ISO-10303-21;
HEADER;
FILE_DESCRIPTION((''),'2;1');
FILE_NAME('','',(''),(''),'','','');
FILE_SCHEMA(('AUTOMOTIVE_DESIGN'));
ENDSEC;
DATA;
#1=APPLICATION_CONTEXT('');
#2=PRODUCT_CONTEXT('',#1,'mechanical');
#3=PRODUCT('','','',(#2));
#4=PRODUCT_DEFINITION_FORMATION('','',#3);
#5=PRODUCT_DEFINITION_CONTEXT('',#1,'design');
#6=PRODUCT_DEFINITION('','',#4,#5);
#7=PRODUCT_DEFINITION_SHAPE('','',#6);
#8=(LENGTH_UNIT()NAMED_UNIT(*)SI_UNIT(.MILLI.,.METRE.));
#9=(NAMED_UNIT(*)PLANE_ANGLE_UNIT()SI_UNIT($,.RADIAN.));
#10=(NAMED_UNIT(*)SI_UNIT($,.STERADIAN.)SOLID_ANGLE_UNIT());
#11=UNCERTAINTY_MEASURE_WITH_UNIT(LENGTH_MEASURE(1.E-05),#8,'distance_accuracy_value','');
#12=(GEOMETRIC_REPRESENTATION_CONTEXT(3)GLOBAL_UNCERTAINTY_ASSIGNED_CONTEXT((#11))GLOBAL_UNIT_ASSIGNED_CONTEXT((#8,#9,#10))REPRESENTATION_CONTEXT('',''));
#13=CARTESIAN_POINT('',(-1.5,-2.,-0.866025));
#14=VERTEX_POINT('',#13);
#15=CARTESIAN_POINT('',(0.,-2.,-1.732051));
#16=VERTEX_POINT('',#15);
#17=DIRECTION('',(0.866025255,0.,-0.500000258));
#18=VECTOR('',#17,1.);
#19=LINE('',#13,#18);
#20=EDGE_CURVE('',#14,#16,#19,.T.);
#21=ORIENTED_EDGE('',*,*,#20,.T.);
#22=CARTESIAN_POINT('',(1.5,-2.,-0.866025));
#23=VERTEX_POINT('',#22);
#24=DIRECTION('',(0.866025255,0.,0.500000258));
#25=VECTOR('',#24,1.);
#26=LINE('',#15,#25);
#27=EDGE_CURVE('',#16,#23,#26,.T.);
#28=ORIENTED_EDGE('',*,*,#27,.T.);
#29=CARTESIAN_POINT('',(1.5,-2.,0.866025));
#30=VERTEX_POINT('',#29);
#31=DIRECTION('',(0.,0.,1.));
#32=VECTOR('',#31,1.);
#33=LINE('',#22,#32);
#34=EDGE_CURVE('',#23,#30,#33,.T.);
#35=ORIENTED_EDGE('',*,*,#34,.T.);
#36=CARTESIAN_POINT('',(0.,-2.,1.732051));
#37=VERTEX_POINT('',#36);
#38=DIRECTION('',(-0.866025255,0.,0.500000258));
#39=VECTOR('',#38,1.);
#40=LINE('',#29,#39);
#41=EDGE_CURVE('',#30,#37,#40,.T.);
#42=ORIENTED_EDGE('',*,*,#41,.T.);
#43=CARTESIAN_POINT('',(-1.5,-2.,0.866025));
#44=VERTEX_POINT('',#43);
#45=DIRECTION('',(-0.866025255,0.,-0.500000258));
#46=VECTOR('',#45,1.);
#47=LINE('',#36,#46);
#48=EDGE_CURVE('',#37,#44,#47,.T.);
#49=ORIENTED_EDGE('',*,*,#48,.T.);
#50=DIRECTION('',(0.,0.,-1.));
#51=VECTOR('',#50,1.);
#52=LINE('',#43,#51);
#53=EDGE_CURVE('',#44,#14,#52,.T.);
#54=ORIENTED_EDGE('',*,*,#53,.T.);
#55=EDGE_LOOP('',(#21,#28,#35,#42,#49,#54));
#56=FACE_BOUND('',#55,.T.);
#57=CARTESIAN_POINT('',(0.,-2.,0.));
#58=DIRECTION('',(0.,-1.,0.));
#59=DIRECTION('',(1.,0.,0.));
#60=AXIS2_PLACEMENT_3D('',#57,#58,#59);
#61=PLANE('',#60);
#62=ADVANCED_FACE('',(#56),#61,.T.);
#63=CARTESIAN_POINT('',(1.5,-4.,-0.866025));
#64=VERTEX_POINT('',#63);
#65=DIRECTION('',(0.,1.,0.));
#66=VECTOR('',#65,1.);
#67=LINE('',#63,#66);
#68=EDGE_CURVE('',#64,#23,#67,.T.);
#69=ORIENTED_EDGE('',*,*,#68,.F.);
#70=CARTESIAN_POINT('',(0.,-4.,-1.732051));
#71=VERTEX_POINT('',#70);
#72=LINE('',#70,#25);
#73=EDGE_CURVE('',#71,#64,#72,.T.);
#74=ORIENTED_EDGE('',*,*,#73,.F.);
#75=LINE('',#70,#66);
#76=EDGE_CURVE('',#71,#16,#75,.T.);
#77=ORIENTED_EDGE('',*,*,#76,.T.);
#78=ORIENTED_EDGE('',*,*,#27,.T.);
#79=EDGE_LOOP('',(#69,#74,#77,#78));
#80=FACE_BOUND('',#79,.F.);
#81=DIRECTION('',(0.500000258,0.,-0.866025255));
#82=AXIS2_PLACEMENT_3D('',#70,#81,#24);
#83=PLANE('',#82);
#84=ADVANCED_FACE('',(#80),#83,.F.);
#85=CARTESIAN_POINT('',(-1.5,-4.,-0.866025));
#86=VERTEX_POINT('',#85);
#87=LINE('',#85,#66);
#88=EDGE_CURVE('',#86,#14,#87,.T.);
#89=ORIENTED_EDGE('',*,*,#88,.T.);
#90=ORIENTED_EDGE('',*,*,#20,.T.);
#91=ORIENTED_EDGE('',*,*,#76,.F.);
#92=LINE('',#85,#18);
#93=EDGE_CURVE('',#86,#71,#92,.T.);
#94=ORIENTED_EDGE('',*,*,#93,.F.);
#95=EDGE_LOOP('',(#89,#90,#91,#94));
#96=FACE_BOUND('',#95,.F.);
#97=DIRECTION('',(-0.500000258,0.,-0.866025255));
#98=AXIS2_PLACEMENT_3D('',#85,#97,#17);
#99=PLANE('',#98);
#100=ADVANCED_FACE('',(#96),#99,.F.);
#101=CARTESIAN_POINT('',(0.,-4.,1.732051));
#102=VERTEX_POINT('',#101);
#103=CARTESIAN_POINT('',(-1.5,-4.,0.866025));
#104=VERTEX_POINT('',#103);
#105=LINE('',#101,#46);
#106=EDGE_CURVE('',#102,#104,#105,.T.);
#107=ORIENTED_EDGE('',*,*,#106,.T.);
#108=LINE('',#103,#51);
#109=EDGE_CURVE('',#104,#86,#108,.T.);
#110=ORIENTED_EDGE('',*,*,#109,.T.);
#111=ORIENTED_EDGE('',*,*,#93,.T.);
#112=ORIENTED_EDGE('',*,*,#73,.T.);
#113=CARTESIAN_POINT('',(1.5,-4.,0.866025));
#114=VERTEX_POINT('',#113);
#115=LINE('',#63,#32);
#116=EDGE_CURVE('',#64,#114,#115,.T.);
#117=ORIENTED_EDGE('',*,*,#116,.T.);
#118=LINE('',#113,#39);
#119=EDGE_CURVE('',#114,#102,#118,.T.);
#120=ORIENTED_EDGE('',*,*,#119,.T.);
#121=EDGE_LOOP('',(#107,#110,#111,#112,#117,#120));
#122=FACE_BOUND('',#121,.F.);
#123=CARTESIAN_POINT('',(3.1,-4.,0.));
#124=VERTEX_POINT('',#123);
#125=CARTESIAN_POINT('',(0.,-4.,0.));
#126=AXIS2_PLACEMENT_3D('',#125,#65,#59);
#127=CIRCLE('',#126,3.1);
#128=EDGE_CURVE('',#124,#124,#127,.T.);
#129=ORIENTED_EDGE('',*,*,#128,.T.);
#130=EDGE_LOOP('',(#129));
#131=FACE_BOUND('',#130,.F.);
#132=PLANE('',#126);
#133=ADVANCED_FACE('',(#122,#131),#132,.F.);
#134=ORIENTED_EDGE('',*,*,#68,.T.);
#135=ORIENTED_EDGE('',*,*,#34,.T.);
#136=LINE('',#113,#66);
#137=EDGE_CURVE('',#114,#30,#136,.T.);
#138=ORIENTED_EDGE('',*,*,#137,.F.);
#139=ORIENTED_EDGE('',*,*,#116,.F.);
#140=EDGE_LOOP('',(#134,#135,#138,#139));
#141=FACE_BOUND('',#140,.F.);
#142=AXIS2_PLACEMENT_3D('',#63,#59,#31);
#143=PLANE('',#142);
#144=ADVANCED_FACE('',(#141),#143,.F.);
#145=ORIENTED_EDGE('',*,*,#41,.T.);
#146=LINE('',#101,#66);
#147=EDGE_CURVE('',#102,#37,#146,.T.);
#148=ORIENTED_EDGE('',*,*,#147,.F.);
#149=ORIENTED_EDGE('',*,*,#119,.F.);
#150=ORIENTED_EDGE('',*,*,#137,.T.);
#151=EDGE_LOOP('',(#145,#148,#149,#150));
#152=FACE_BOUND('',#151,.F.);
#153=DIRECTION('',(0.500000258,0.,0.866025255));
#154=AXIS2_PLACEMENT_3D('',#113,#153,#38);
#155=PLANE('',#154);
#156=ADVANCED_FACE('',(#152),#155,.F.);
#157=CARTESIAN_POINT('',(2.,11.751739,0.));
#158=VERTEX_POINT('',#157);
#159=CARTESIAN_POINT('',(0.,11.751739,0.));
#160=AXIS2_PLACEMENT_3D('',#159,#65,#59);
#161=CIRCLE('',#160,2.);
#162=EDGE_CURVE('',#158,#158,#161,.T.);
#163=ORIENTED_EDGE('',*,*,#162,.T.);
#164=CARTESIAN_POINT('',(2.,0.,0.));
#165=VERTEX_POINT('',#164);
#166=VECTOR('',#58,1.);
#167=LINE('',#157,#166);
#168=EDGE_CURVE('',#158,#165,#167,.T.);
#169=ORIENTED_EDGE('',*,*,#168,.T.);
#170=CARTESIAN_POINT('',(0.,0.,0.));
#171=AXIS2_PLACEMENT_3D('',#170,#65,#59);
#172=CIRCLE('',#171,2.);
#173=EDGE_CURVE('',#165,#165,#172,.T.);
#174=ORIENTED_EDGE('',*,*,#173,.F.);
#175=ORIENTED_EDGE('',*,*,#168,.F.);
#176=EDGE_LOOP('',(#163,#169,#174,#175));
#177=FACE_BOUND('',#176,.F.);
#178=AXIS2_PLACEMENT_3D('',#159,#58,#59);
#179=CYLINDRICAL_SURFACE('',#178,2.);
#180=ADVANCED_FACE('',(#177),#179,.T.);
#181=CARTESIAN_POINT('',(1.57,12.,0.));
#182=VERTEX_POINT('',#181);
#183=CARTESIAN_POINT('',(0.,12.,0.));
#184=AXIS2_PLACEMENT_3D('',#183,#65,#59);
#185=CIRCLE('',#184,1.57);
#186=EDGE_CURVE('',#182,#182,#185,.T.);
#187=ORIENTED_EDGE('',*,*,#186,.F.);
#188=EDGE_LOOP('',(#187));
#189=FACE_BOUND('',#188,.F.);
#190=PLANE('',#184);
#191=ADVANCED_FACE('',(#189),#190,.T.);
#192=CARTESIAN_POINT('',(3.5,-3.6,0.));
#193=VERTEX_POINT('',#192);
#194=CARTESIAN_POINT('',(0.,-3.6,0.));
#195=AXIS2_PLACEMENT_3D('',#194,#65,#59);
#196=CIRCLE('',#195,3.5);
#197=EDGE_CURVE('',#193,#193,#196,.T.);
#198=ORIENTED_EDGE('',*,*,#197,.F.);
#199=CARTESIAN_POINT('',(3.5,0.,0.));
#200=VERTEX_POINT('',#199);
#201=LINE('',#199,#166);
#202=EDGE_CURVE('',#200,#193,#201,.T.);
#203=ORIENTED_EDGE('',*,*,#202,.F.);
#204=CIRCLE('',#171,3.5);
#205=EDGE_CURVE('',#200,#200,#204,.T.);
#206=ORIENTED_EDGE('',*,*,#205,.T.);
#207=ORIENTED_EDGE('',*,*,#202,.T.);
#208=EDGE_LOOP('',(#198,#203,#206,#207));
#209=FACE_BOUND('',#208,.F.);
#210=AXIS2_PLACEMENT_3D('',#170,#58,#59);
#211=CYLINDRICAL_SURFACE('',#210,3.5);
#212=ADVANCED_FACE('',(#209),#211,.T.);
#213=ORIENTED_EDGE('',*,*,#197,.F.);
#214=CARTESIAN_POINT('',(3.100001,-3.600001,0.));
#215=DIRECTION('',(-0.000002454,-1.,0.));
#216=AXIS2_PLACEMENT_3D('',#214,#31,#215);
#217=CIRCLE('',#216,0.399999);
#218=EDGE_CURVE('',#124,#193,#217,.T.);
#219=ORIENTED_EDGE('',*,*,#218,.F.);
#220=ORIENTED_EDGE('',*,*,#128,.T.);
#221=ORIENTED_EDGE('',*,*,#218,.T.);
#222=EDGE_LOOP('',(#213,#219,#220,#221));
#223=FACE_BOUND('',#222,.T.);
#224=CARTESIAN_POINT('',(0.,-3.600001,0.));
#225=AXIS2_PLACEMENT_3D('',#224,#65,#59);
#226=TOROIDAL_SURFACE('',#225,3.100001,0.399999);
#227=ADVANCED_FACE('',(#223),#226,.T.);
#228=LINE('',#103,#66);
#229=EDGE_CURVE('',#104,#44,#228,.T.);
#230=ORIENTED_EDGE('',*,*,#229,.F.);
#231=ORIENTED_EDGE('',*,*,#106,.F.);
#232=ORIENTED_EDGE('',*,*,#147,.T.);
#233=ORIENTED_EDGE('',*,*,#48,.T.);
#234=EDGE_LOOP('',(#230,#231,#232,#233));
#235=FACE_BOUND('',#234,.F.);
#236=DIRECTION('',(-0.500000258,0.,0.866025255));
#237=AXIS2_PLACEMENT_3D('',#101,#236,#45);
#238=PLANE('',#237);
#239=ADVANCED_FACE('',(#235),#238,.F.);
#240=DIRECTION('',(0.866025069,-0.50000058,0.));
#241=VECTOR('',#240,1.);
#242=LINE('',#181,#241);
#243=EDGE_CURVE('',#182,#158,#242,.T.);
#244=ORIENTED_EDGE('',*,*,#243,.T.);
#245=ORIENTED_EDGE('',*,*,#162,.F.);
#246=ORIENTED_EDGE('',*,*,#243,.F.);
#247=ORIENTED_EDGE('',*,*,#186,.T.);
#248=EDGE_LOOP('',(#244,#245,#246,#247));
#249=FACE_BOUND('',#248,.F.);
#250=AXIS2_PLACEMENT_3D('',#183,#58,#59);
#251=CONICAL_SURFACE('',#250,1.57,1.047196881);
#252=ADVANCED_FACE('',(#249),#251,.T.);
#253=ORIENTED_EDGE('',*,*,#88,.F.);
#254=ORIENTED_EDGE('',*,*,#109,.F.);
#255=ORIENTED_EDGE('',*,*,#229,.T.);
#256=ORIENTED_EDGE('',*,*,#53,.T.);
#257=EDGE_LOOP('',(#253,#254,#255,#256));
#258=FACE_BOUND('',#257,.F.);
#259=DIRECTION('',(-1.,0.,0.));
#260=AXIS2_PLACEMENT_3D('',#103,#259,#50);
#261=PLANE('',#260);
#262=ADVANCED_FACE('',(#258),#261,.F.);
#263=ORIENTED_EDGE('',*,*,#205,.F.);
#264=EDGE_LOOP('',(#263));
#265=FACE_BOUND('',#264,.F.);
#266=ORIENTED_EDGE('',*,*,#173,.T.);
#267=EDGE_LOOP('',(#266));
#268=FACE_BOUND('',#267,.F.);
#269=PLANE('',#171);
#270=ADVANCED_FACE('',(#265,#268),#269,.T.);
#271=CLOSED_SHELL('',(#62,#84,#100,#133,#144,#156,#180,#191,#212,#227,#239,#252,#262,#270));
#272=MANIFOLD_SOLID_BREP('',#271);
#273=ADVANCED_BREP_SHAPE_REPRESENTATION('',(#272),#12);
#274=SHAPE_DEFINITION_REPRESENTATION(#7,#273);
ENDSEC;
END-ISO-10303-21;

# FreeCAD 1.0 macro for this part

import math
import FreeCAD as App
import Part
import Sketcher

V = App.Vector
Q = App.Units.Quantity


def add_polygon(sketch, points):
    """Adds a closed chain of lines whose ends are joined by coincident constraints."""
    first, n = sketch.GeometryCount, len(points)
    for a, b in zip(points, points[1:] + points[:1]):
        sketch.addGeometry(Part.LineSegment(App.Vector(*a, 0), App.Vector(*b, 0)), False)
    for i in range(n):
        sketch.addConstraint(Sketcher.Constraint("Coincident", first + i, 2, first + (i + 1) % n, 1))

doc = App.newDocument("Part")
body = doc.addObject("PartDesign::Body", "Body")

# Sketch on XY plane
sketch1 = body.newObject("Sketcher::SketchObject", "Sketch")
sketch1.AttachmentSupport = (doc.getObject("XY_Plane"), [""])
sketch1.MapMode = "FlatFace"
sketch1.addGeometry([
    Part.LineSegment(V(3.5, 0, 0), V(2, 0, 0)),  # 0
    Part.LineSegment(V(2, 0, 0), V(2, 11.751739, 0)),  # 1
    Part.LineSegment(V(2, 11.751739, 0), V(1.57, 12, 0)),  # 2
    Part.LineSegment(V(1.57, 12, 0), V(0, 12, 0)),  # 3
    Part.LineSegment(V(0, 12, 0), V(0, -4, 0)),  # 4
    Part.LineSegment(V(0, -4, 0), V(3.1, -4, 0)),  # 5
    Part.ArcOfCircle(Part.Circle(V(3.100001, -3.600001, 0), V(0, 0, 1), 0.399999), math.radians(-90.000141), math.radians(0.000141)),  # 6
    Part.LineSegment(V(3.5, -3.6, 0), V(3.5, 0, 0)),  # 7
], False)
sketch1.addConstraint([
    Sketcher.Constraint("Coincident", 0, 2, 1, 1),
    Sketcher.Constraint("Coincident", 1, 2, 2, 1),
    Sketcher.Constraint("Coincident", 2, 2, 3, 1),
    Sketcher.Constraint("Coincident", 3, 2, 4, 1),
    Sketcher.Constraint("Coincident", 4, 2, 5, 1),
    Sketcher.Constraint("Coincident", 5, 2, 6, 1),
    Sketcher.Constraint("Coincident", 6, 2, 7, 1),
    Sketcher.Constraint("Coincident", 7, 2, 0, 1),
    Sketcher.Constraint("Horizontal", 0),
    Sketcher.Constraint("Vertical", 1),
    Sketcher.Constraint("Horizontal", 3),
    Sketcher.Constraint("Vertical", 4),
    Sketcher.Constraint("Horizontal", 5),
    Sketcher.Constraint("Vertical", 7),
    Sketcher.Constraint("PointOnObject", 0, 2, -1),
    Sketcher.Constraint("PointOnObject", 3, 2, -2),
    Sketcher.Constraint("Vertical", 6, 3, 5, 2),
    Sketcher.Constraint("Radius", 6, Q("0.399999 mm")),
    Sketcher.Constraint("DistanceY", 4, 2, 4, 1, Q("16 mm")),
    Sketcher.Constraint("DistanceX", 0, 2, 0, 1, Q("1.5 mm")),
    Sketcher.Constraint("DistanceX", 5, 1, 5, 2, Q("3.1 mm")),
    Sketcher.Constraint("DistanceY", 7, 1, 7, 2, Q("3.6 mm")),
    Sketcher.Constraint("DistanceY", -1, 1, 2, 2, Q("12 mm")),
    Sketcher.Constraint("DistanceX", 3, 2, 3, 1, Q("1.57 mm")),
    Sketcher.Constraint("DistanceY", 1, 1, 1, 2, Q("11.751739 mm")),
])
revolution = body.newObject("PartDesign::Revolution", "Revolution")
revolution.Profile = sketch1
revolution.ReferenceAxis = (sketch1, ["V_Axis"])
revolution.Angle = 360

# Sketch on XZ plane
sketch2 = body.newObject("Sketcher::SketchObject", "Sketch001")
sketch2.AttachmentSupport = (doc.getObject("XZ_Plane"), [""])
sketch2.MapMode = "FlatFace"
sketch2.AttachmentOffset = App.Placement(V(0, 0, 4), App.Rotation())
add_polygon(sketch2, [(-1.5, 0.866025), (-1.5, -0.866025), (0, -1.732051), (1.5, -0.866025), (1.5, 0.866025), (0, 1.732051)])  # lines 0-5
sketch2.addConstraint([
    Sketcher.Constraint("Vertical", 0),
    Sketcher.Constraint("Vertical", 3),
    Sketcher.Constraint("Symmetric", 0, 2, 3, 2, -1, 1),
    Sketcher.Constraint("Symmetric", 1, 2, 4, 2, -1, 1),
    Sketcher.Constraint("PointOnObject", 1, 2, -2),
    Sketcher.Constraint("Parallel", 2, 5),
    Sketcher.Constraint("Horizontal", 0, 2, 2, 2),
    Sketcher.Constraint("Angle", 1, Q("-30.000017 deg")),
    Sketcher.Constraint("DistanceX", 0, 2, 2, 2, Q("3 mm")),
    Sketcher.Constraint("DistanceY", 0, 2, 0, 1, Q("1.73205 mm")),
])
pocket1 = body.newObject("PartDesign::Pocket", "Pocket")
pocket1.Profile = sketch2
pocket1.Length = 2

doc.recompute()
